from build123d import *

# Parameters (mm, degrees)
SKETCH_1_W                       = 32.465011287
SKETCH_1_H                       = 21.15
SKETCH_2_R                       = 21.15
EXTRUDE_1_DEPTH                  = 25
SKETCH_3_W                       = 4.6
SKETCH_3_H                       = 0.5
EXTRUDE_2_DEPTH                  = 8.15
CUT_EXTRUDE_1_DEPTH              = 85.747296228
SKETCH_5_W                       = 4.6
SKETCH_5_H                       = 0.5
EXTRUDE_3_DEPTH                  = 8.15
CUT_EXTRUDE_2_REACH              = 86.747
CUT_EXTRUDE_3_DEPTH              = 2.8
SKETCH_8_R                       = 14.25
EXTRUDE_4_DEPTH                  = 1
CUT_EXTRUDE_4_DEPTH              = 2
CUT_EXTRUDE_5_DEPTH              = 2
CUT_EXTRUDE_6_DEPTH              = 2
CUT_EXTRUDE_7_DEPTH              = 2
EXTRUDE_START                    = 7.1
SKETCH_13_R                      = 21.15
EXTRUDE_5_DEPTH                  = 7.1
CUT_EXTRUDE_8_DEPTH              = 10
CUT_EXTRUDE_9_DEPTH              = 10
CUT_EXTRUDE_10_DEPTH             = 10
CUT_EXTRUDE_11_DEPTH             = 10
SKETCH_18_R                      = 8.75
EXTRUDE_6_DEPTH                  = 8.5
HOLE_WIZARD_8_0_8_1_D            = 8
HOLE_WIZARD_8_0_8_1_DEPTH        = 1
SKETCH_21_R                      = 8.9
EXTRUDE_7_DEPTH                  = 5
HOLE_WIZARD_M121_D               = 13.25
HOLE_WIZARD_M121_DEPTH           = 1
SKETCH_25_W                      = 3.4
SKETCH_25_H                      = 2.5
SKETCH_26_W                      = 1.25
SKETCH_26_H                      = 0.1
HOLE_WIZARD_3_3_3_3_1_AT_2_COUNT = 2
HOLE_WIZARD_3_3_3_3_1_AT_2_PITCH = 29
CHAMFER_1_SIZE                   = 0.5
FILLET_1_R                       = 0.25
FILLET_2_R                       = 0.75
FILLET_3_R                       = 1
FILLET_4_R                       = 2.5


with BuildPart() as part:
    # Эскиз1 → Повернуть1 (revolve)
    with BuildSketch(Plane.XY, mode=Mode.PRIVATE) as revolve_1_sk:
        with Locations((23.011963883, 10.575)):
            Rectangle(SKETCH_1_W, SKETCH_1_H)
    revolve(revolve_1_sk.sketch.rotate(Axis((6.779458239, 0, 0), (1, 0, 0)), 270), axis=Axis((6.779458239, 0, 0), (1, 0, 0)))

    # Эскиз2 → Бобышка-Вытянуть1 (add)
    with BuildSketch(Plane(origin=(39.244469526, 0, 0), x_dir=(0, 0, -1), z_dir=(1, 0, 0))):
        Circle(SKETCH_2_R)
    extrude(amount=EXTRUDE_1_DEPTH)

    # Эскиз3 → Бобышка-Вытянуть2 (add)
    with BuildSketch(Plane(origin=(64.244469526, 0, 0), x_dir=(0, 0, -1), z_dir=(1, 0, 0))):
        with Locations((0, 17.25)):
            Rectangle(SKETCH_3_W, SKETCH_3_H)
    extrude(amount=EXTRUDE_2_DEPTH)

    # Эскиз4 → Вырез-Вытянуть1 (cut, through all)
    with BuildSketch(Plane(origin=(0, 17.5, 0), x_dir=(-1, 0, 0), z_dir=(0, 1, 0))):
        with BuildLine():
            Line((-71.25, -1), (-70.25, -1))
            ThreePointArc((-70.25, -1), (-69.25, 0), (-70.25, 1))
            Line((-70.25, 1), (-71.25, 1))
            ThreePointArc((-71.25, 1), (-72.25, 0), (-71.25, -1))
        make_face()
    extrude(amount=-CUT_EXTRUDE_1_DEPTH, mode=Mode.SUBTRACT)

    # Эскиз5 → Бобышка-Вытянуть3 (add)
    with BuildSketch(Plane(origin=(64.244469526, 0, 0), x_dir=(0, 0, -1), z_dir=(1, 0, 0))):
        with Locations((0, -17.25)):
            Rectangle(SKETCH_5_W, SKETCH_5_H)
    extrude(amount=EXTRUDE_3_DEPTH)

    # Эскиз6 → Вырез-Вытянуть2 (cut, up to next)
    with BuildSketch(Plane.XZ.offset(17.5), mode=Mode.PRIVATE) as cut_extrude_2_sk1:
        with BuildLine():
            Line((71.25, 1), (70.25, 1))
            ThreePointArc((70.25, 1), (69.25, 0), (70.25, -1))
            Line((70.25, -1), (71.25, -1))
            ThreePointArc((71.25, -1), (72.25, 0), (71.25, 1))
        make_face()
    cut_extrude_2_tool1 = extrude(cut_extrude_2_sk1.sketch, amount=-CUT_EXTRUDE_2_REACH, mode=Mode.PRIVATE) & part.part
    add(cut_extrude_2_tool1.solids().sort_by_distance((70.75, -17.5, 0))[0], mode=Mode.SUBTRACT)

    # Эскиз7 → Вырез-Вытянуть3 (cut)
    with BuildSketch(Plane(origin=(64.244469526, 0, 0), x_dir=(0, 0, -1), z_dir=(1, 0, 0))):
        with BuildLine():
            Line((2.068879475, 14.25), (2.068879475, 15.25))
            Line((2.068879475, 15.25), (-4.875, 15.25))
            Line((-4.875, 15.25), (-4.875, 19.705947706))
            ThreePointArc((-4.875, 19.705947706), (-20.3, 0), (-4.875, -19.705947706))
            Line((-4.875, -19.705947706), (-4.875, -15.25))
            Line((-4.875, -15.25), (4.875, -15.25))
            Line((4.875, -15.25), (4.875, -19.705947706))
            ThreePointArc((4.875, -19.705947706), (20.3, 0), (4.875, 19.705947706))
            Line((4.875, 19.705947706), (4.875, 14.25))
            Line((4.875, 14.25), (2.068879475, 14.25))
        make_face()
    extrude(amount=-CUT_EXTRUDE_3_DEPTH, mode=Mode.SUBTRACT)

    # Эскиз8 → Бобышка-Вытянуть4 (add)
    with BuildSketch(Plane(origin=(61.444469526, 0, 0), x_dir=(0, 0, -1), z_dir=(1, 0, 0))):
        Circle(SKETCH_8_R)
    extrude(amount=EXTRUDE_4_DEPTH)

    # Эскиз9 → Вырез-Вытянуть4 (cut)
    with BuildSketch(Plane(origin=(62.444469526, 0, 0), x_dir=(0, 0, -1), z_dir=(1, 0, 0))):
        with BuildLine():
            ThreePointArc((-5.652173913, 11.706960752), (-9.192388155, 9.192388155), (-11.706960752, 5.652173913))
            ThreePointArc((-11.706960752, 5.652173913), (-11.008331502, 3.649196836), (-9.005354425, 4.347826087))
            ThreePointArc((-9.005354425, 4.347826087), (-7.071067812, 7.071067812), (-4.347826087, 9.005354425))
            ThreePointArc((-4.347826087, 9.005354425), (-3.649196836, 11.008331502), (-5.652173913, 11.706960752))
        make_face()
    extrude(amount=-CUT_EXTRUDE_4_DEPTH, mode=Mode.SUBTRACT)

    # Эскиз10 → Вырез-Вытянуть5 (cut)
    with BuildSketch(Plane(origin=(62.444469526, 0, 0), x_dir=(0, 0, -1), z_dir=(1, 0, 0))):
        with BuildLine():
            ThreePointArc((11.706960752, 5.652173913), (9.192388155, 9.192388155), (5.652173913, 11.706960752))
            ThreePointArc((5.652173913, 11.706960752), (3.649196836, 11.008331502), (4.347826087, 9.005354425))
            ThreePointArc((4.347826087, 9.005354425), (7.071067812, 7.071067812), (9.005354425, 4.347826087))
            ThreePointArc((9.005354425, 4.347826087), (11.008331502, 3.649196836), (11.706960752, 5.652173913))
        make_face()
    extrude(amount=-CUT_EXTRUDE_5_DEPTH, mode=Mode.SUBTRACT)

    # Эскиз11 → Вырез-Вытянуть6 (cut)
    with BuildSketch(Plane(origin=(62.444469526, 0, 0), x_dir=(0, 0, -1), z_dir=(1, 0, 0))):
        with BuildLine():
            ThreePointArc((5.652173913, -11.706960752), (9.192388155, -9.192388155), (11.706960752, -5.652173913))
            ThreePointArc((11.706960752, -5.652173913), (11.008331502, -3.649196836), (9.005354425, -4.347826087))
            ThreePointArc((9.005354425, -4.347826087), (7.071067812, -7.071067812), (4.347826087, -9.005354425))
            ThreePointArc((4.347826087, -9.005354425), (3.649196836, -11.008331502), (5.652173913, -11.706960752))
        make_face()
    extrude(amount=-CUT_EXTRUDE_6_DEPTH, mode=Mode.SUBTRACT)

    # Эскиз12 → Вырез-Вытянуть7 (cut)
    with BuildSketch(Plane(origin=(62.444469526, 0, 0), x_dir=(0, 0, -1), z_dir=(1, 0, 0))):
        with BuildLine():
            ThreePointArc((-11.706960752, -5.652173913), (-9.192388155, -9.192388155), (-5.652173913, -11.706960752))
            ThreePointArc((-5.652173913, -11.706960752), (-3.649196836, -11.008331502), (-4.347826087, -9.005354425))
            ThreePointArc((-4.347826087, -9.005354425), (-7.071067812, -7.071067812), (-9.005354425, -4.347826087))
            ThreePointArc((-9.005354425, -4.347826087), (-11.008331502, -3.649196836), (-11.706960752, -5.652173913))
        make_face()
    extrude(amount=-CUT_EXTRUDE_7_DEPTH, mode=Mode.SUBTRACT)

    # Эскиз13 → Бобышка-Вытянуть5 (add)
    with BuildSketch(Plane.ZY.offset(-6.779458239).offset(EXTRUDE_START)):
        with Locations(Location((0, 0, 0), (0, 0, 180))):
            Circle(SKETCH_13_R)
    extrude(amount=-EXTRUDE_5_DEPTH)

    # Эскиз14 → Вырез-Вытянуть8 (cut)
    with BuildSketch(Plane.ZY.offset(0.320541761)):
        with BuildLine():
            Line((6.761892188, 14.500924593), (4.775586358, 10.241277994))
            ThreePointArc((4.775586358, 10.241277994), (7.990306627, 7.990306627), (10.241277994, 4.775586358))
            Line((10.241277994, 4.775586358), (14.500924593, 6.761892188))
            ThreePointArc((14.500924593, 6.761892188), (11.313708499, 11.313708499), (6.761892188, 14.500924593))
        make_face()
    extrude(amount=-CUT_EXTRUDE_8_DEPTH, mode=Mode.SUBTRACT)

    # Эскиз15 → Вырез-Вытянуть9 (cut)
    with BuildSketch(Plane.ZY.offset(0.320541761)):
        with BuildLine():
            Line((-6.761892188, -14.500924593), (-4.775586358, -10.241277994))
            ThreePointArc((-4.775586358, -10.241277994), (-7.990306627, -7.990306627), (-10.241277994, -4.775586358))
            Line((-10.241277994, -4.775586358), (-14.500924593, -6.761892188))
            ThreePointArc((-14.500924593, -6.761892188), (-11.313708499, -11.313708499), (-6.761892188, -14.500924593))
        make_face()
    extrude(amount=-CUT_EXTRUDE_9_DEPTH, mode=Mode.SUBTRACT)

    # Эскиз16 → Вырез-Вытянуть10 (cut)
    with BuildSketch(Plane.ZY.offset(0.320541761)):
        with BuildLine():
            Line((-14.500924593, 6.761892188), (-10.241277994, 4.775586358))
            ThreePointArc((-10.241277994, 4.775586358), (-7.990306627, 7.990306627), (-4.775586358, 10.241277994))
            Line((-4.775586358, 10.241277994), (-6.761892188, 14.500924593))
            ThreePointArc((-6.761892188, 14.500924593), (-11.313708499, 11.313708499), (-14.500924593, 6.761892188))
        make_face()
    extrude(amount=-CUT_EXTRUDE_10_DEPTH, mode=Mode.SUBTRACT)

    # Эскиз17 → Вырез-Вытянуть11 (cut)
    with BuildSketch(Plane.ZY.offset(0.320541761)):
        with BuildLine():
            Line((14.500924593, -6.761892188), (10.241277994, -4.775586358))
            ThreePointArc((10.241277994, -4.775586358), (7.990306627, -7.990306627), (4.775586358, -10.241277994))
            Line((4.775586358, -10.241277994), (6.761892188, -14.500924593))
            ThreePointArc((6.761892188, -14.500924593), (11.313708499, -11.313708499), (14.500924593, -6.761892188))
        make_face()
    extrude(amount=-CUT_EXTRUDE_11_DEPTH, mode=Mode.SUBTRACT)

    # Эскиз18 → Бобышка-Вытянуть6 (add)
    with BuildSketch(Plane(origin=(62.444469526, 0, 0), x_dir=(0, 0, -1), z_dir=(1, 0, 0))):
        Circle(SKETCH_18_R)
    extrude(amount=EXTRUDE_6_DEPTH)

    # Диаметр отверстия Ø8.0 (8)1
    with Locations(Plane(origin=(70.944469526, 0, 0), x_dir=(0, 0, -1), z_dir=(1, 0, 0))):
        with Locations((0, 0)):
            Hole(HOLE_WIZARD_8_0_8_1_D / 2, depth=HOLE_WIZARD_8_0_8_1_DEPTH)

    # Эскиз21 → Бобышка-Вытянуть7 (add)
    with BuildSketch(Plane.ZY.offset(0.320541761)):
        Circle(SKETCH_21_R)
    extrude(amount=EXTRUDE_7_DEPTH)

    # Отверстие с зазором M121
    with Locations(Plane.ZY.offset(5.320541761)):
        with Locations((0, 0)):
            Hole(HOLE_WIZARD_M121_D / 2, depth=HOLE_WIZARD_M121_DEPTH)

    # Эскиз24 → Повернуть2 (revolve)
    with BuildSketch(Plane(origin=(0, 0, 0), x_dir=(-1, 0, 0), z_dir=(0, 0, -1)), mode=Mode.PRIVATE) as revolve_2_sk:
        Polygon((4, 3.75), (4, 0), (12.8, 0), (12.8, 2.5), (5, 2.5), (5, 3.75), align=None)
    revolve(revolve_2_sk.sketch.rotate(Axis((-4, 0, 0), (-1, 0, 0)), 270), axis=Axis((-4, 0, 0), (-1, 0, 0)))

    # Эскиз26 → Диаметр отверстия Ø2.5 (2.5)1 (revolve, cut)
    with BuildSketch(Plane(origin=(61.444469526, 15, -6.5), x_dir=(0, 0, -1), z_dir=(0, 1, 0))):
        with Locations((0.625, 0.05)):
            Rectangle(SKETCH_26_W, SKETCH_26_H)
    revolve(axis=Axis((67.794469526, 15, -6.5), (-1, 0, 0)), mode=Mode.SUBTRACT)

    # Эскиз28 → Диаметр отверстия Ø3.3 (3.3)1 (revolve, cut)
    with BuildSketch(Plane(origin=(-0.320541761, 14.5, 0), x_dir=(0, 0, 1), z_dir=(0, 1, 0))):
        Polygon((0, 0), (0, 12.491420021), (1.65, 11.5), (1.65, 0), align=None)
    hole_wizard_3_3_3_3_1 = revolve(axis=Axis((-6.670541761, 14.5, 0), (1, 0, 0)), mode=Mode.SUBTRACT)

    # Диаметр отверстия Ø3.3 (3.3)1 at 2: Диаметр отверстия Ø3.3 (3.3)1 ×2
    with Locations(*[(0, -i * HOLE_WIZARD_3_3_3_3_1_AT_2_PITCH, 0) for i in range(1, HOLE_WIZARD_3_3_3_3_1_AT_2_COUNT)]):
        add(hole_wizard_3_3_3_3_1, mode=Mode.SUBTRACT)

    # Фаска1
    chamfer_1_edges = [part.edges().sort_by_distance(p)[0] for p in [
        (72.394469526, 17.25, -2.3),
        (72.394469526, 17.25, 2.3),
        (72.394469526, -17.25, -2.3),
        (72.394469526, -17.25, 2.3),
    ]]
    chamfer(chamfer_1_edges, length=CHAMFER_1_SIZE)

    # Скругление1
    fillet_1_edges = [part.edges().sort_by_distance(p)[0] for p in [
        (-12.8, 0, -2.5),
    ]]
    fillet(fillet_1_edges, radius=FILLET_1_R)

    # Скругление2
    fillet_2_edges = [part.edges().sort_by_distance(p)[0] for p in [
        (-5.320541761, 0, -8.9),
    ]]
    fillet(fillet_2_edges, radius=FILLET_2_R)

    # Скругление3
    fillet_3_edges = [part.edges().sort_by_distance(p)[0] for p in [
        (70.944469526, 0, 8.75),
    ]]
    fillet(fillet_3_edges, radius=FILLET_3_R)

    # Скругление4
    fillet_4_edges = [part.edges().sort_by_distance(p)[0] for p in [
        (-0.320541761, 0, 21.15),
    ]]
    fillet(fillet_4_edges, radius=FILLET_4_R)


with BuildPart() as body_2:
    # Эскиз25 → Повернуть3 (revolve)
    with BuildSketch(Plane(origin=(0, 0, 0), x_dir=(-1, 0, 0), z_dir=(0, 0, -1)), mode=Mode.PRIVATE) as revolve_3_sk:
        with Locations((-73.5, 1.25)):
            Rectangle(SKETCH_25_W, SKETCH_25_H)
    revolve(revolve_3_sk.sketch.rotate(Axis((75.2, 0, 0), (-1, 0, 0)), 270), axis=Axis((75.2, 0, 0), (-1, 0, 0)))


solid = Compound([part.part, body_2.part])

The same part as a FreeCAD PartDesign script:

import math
import FreeCAD as App
import Part
import Sketcher
from FreeCAD import Vector
Q = App.Units.Quantity


def edges_at(feature, points):
    """Names of the edges that pass closest to the given points."""
    edges = feature.Shape.Edges
    near = lambda p: min(range(len(edges)), key=lambda i: edges[i].distToShape(Part.Vertex(*p))[0])
    return sorted({f"Edge{near(p) + 1}" for p in points})

doc = App.newDocument("Part")
body = doc.addObject("PartDesign::Body", "Body")

# Sketch on XY plane
sketch1 = body.newObject("Sketcher::SketchObject", "Sketch")
sketch1.AttachmentSupport = (doc.getObject("XY_Plane"), [""])
sketch1.MapMode = "FlatFace"
sketch1.addGeometry([
    Part.LineSegment(Vector(7, 21, 0), Vector(7, 0, 0)),
    Part.LineSegment(Vector(7, 0, 0), Vector(39, 0, 0)),
    Part.LineSegment(Vector(39, 0, 0), Vector(39, 21, 0)),
    Part.LineSegment(Vector(39, 21, 0), Vector(7, 21, 0)),
], False)
sketch1.addConstraint([
    Sketcher.Constraint("Coincident", 0, 2, 1, 1),
    Sketcher.Constraint("Coincident", 1, 2, 2, 1),
    Sketcher.Constraint("Coincident", 2, 2, 3, 1),
    Sketcher.Constraint("Coincident", 3, 2, 0, 1),
    Sketcher.Constraint("Vertical", 0),
    Sketcher.Constraint("Horizontal", 1),
    Sketcher.Constraint("Vertical", 2),
    Sketcher.Constraint("Horizontal", 3),
    Sketcher.Constraint("PointOnObject", 0, 2, -1),
    Sketcher.Constraint("DistanceY", 0, 2, 0, 1, 21.15),
    Sketcher.Constraint("DistanceX", 1, 1, 1, 2, 32.465011),
    Sketcher.Constraint("DistanceX", -1, 1, 0, 2, 6.779458),
])
revolution = body.newObject("PartDesign::Revolution", "Revolution")
revolution.Profile = sketch1
revolution.ReferenceAxis = (sketch1, ["H_Axis"])
revolution.Angle = 360

# Sketch on YZ plane
sketch2 = body.newObject("Sketcher::SketchObject", "Sketch001")
sketch2.AttachmentSupport = (doc.getObject("YZ_Plane"), [""])
sketch2.MapMode = "FlatFace"
sketch2.AttachmentOffset = App.Placement(Vector(0, 0, 39.24447), App.Rotation())
sketch2.addGeometry(Part.Circle(Vector(0, 0, 0), Vector(0, 0, 1), 21), False)
sketch2.addConstraint([
    Sketcher.Constraint("Coincident", 0, 3, -1, 1),
    Sketcher.Constraint("Diameter", 0, 42.3),
])
pad1 = body.newObject("PartDesign::Pad", "Pad")
pad1.Profile = sketch2
pad1.Length = 25

# Sketch on YZ plane
sketch3 = body.newObject("Sketcher::SketchObject", "Sketch002")
sketch3.AttachmentSupport = (doc.getObject("YZ_Plane"), [""])
sketch3.MapMode = "FlatFace"
sketch3.AttachmentOffset = App.Placement(Vector(0, 0, 64.24447), App.Rotation())
sketch3.addGeometry([
    Part.LineSegment(Vector(17.5, 2.3, 0), Vector(17, 2.3, 0)),
    Part.LineSegment(Vector(17, 2.3, 0), Vector(17, -2.3, 0)),
    Part.LineSegment(Vector(17, -2.3, 0), Vector(17.5, -2.3, 0)),
    Part.LineSegment(Vector(17.5, -2.3, 0), Vector(17.5, 2.3, 0)),
], False)
sketch3.addConstraint([
    Sketcher.Constraint("Coincident", 0, 2, 1, 1),
    Sketcher.Constraint("Coincident", 1, 2, 2, 1),
    Sketcher.Constraint("Coincident", 2, 2, 3, 1),
    Sketcher.Constraint("Coincident", 3, 2, 0, 1),
    Sketcher.Constraint("Horizontal", 0),
    Sketcher.Constraint("Vertical", 1),
    Sketcher.Constraint("Horizontal", 2),
    Sketcher.Constraint("Vertical", 3),
    Sketcher.Constraint("DistanceX", 0, 2, 0, 1, 0.5),
    Sketcher.Constraint("DistanceY", 1, 2, 1, 1, 4.6),
    Sketcher.Constraint("DistanceX", -1, 1, 0, 2, 17.0),
    Sketcher.Constraint("DistanceY", -1, 1, 0, 2, 2.3),
])
pad2 = body.newObject("PartDesign::Pad", "Pad001")
pad2.Profile = sketch3
pad2.Length = 8.15

# Sketch on XZ plane
sketch4 = body.newObject("Sketcher::SketchObject", "Sketch003")
sketch4.AttachmentSupport = (doc.getObject("XZ_Plane"), [""])
sketch4.MapMode = "FlatFace"
sketch4.AttachmentOffset = App.Placement(Vector(0, 0, -17.5), App.Rotation())
sketch4.addGeometry([
    Part.LineSegment(Vector(71.2, -1, 0), Vector(70.2, -1, 0)),
    Part.ArcOfCircle(Part.Circle(Vector(70.2, 0, 0), Vector(0, 0, 1), 1), math.radians(90), math.radians(270)),
    Part.LineSegment(Vector(70.2, 1, 0), Vector(71.2, 1, 0)),
    Part.ArcOfCircle(Part.Circle(Vector(71.2, 0, 0), Vector(0, 0, 1), 1), math.radians(-90), math.radians(90)),
], False)
sketch4.addConstraint([
    Sketcher.Constraint("Tangent", 0, 2, 1, 2),
    Sketcher.Constraint("Tangent", 1, 1, 2, 1),
    Sketcher.Constraint("Tangent", 2, 2, 3, 2),
    Sketcher.Constraint("Tangent", 3, 1, 0, 1),
    Sketcher.Constraint("Horizontal", 0),
    Sketcher.Constraint("Horizontal", 2),
    Sketcher.Constraint("PointOnObject", 1, 3, -1),
    Sketcher.Constraint("Radius", 1, 1.0),
    Sketcher.Constraint("DistanceX", 0, 2, 0, 1, 1.0),
    Sketcher.Constraint("DistanceX", -1, 1, 1, 3, 70.25),
])
pocket1 = body.newObject("PartDesign::Pocket", "Pocket")
pocket1.Profile = sketch4
pocket1.Type = "ThroughAll"
pocket1.Reversed = True

# Sketch on YZ plane
sketch5 = body.newObject("Sketcher::SketchObject", "Sketch004")
sketch5.AttachmentSupport = (doc.getObject("YZ_Plane"), [""])
sketch5.MapMode = "FlatFace"
sketch5.AttachmentOffset = App.Placement(Vector(0, 0, 64.24447), App.Rotation())
sketch5.addGeometry([
    Part.LineSegment(Vector(-17, 2.3, 0), Vector(-17.5, 2.3, 0)),
    Part.LineSegment(Vector(-17.5, 2.3, 0), Vector(-17.5, -2.3, 0)),
    Part.LineSegment(Vector(-17.5, -2.3, 0), Vector(-17, -2.3, 0)),
    Part.LineSegment(Vector(-17, -2.3, 0), Vector(-17, 2.3, 0)),
], False)
sketch5.addConstraint([
    Sketcher.Constraint("Coincident", 0, 2, 1, 1),
    Sketcher.Constraint("Coincident", 1, 2, 2, 1),
    Sketcher.Constraint("Coincident", 2, 2, 3, 1),
    Sketcher.Constraint("Coincident", 3, 2, 0, 1),
    Sketcher.Constraint("Horizontal", 0),
    Sketcher.Constraint("Vertical", 1),
    Sketcher.Constraint("Horizontal", 2),
    Sketcher.Constraint("Vertical", 3),
    Sketcher.Constraint("DistanceX", 0, 2, 0, 1, 0.5),
    Sketcher.Constraint("DistanceY", 1, 2, 1, 1, 4.6),
    Sketcher.Constraint("DistanceX", 2, 2, -1, 1, 17.0),
    Sketcher.Constraint("DistanceY", -1, 1, 0, 2, 2.3),
])
pad3 = body.newObject("PartDesign::Pad", "Pad002")
pad3.Profile = sketch5
pad3.Length = 8.15

# Sketch on XZ plane
sketch6 = body.newObject("Sketcher::SketchObject", "Sketch005")
sketch6.AttachmentSupport = (doc.getObject("XZ_Plane"), [""])
sketch6.MapMode = "FlatFace"
sketch6.AttachmentOffset = App.Placement(Vector(0, 0, 17.5), App.Rotation())
sketch6.addGeometry([
    Part.LineSegment(Vector(71.2, 1, 0), Vector(70.2, 1, 0)),
    Part.ArcOfCircle(Part.Circle(Vector(70.2, 0, 0), Vector(0, 0, 1), 1), math.radians(90), math.radians(270)),
    Part.LineSegment(Vector(70.2, -1, 0), Vector(71.2, -1, 0)),
    Part.ArcOfCircle(Part.Circle(Vector(71.2, 0, 0), Vector(0, 0, 1), 1), math.radians(-90), math.radians(90)),
], False)
sketch6.addConstraint([
    Sketcher.Constraint("Tangent", 0, 2, 1, 1),
    Sketcher.Constraint("Tangent", 1, 2, 2, 1),
    Sketcher.Constraint("Tangent", 2, 2, 3, 1),
    Sketcher.Constraint("Tangent", 3, 2, 0, 1),
    Sketcher.Constraint("Horizontal", 0),
    Sketcher.Constraint("Horizontal", 2),
    Sketcher.Constraint("PointOnObject", 1, 3, -1),
    Sketcher.Constraint("Radius", 1, 1.0),
    Sketcher.Constraint("DistanceX", 0, 2, 0, 1, 1.0),
    Sketcher.Constraint("DistanceX", -1, 1, 1, 3, 70.25),
])
pocket2 = body.newObject("PartDesign::Pocket", "Pocket001")
pocket2.Profile = sketch6
pocket2.Type = "UpToFirst"

# Sketch on YZ plane
sketch7 = body.newObject("Sketcher::SketchObject", "Sketch006")
sketch7.AttachmentSupport = (doc.getObject("YZ_Plane"), [""])
sketch7.MapMode = "FlatFace"
sketch7.AttachmentOffset = App.Placement(Vector(0, 0, 64.24447), App.Rotation())
sketch7.addGeometry([
    Part.LineSegment(Vector(14.2, -2.1, 0), Vector(15.2, -2.1, 0)),  # 0
    Part.LineSegment(Vector(15.2, -2.1, 0), Vector(15.2, 4.9, 0)),  # 1
    Part.LineSegment(Vector(15.2, 4.9, 0), Vector(19.7, 4.9, 0)),  # 2
    Part.ArcOfCircle(Part.Circle(Vector(0, 0, 0), Vector(0, 0, 1), 20.3), math.radians(14), math.radians(166)),  # 3
    Part.LineSegment(Vector(-19.7, 4.9, 0), Vector(-15.2, 4.9, 0)),  # 4
    Part.LineSegment(Vector(-15.2, 4.9, 0), Vector(-15.2, -4.9, 0)),  # 5
    Part.LineSegment(Vector(-15.2, -4.9, 0), Vector(-19.7, -4.9, 0)),  # 6
    Part.ArcOfCircle(Part.Circle(Vector(0, 0, 0), Vector(0, 0, 1), 20.3), math.radians(-166), math.radians(-14)),  # 7
    Part.LineSegment(Vector(19.7, -4.9, 0), Vector(14.2, -4.9, 0)),  # 8
    Part.LineSegment(Vector(14.2, -4.9, 0), Vector(14.2, -2.1, 0)),  # 9
], False)
sketch7.addConstraint([
    Sketcher.Constraint("Coincident", 0, 2, 1, 1),
    Sketcher.Constraint("Coincident", 1, 2, 2, 1),
    Sketcher.Constraint("Coincident", 2, 2, 3, 1),
    Sketcher.Constraint("Coincident", 3, 2, 4, 1),
    Sketcher.Constraint("Coincident", 4, 2, 5, 1),
    Sketcher.Constraint("Coincident", 5, 2, 6, 1),
    Sketcher.Constraint("Coincident", 6, 2, 7, 1),
    Sketcher.Constraint("Coincident", 7, 2, 8, 1),
    Sketcher.Constraint("Coincident", 8, 2, 9, 1),
    Sketcher.Constraint("Coincident", 9, 2, 0, 1),
    Sketcher.Constraint("Horizontal", 0),
    Sketcher.Constraint("Vertical", 1),
    Sketcher.Constraint("Horizontal", 2),
    Sketcher.Constraint("Horizontal", 4),
    Sketcher.Constraint("Vertical", 5),
    Sketcher.Constraint("Horizontal", 6),
    Sketcher.Constraint("Horizontal", 8),
    Sketcher.Constraint("Vertical", 9),
    Sketcher.Constraint("Coincident", 3, 3, -1, 1),
    Sketcher.Constraint("Coincident", 7, 3, -1, 1),
    Sketcher.Constraint("Equal", 3, 7),
    Sketcher.Constraint("Symmetric", 1, 2, 5, 2, -1, 1),
    Sketcher.Constraint("Horizontal", 2, 2, 3, 2),
    Sketcher.Constraint("Horizontal", 6, 2, 7, 2),
    Sketcher.Constraint("Radius", 3, 20.3),
    Sketcher.Constraint("DistanceX", 0, 1, 0, 2, 1.0),
    Sketcher.Constraint("DistanceY", 5, 2, 5, 1, 9.75),
    Sketcher.Constraint("DistanceX", 4, 2, 1, 2, 30.5),
    Sketcher.Constraint("DistanceY", 1, 1, 1, 2, 6.943879),
])
pocket3 = body.newObject("PartDesign::Pocket", "Pocket002")
pocket3.Profile = sketch7
pocket3.Length = 2.8

# Sketch on YZ plane
sketch8 = body.newObject("Sketcher::SketchObject", "Sketch007")
sketch8.AttachmentSupport = (doc.getObject("YZ_Plane"), [""])
sketch8.MapMode = "FlatFace"
sketch8.AttachmentOffset = App.Placement(Vector(0, 0, 61.44447), App.Rotation())
sketch8.addGeometry(Part.Circle(Vector(0, 0, 0), Vector(0, 0, 1), 14), False)
sketch8.addConstraint([
    Sketcher.Constraint("Coincident", 0, 3, -1, 1),
    Sketcher.Constraint("Diameter", 0, 28.5),
])
pad4 = body.newObject("PartDesign::Pad", "Pad003")
pad4.Profile = sketch8
pad4.Length = 1

# Sketch on YZ plane
sketch9 = body.newObject("Sketcher::SketchObject", "Sketch008")
sketch9.AttachmentSupport = (doc.getObject("YZ_Plane"), [""])
sketch9.MapMode = "FlatFace"
sketch9.AttachmentOffset = App.Placement(Vector(0, 0, 62.44447), App.Rotation())
sketch9.addGeometry([
    Part.ArcOfCircle(Part.Circle(Vector(0, 0, 0), Vector(0, 0, 1), 13), math.radians(26), math.radians(64)),
    Part.ArcOfCircle(Part.Circle(Vector(5, 10.4, 0), Vector(0, 0, 1), 1.5), math.radians(64), math.radians(244)),
    Part.ArcOfCircle(Part.Circle(Vector(0, 0, 0), Vector(0, 0, 1), 10), math.radians(26), math.radians(64)),
    Part.ArcOfCircle(Part.Circle(Vector(10.4, 5, 0), Vector(0, 0, 1), 1.5), math.radians(-154), math.radians(26)),
], False)
sketch9.addConstraint([
    Sketcher.Constraint("Tangent", 0, 2, 1, 1),
    Sketcher.Constraint("Tangent", 1, 2, 2, 2),
    Sketcher.Constraint("Tangent", 2, 1, 3, 1),
    Sketcher.Constraint("Tangent", 3, 2, 0, 1),
    Sketcher.Constraint("Coincident", 0, 3, -1, 1),
    Sketcher.Constraint("Coincident", 2, 3, -1, 1),
    Sketcher.Constraint("Radius", 0, 13.0),
    Sketcher.Constraint("Radius", 2, 10.0),
    Sketcher.Constraint("DistanceX", -1, 1, 1, 3, 5.0),
    Sketcher.Constraint("DistanceY", -1, 1, 3, 3, 5.0),
])
pocket4 = body.newObject("PartDesign::Pocket", "Pocket003")
pocket4.Profile = sketch9
pocket4.Length = 2

# Sketch on YZ plane
sketch10 = body.newObject("Sketcher::SketchObject", "Sketch009")
sketch10.AttachmentSupport = (doc.getObject("YZ_Plane"), [""])
sketch10.MapMode = "FlatFace"
sketch10.AttachmentOffset = App.Placement(Vector(0, 0, 62.44447), App.Rotation())
sketch10.addGeometry([
    Part.ArcOfCircle(Part.Circle(Vector(0, 0, 0), Vector(0, 0, 1), 13), math.radians(-64), math.radians(-26)),
    Part.ArcOfCircle(Part.Circle(Vector(10.4, -5, 0), Vector(0, 0, 1), 1.5), math.radians(-26), math.radians(154)),
    Part.ArcOfCircle(Part.Circle(Vector(0, 0, 0), Vector(0, 0, 1), 10), math.radians(-64), math.radians(-26)),
    Part.ArcOfCircle(Part.Circle(Vector(5, -10.4, 0), Vector(0, 0, 1), 1.5), math.radians(116), math.radians(296)),
], False)
sketch10.addConstraint([
    Sketcher.Constraint("Tangent", 0, 2, 1, 1),
    Sketcher.Constraint("Tangent", 1, 2, 2, 2),
    Sketcher.Constraint("Tangent", 2, 1, 3, 1),
    Sketcher.Constraint("Tangent", 3, 2, 0, 1),
    Sketcher.Constraint("Coincident", 0, 3, -1, 1),
    Sketcher.Constraint("Coincident", 2, 3, -1, 1),
    Sketcher.Constraint("Radius", 0, 13.0),
    Sketcher.Constraint("Radius", 2, 10.0),
    Sketcher.Constraint("DistanceY", 1, 3, -1, 1, 5.0),
    Sketcher.Constraint("DistanceX", -1, 1, 3, 3, 5.0),
])
pocket5 = body.newObject("PartDesign::Pocket", "Pocket004")
pocket5.Profile = sketch10
pocket5.Length = 2

# Sketch on YZ plane
sketch11 = body.newObject("Sketcher::SketchObject", "Sketch010")
sketch11.AttachmentSupport = (doc.getObject("YZ_Plane"), [""])
sketch11.MapMode = "FlatFace"
sketch11.AttachmentOffset = App.Placement(Vector(0, 0, 62.44447), App.Rotation())
sketch11.addGeometry([
    Part.ArcOfCircle(Part.Circle(Vector(0, 0, 0), Vector(0, 0, 1), 13), math.radians(-154), math.radians(-116)),
    Part.ArcOfCircle(Part.Circle(Vector(-5, -10.4, 0), Vector(0, 0, 1), 1.5), math.radians(-116), math.radians(64)),
    Part.ArcOfCircle(Part.Circle(Vector(0, 0, 0), Vector(0, 0, 1), 10), math.radians(-154), math.radians(-116)),
    Part.ArcOfCircle(Part.Circle(Vector(-10.4, -5, 0), Vector(0, 0, 1), 1.5), math.radians(26), math.radians(206)),
], False)
sketch11.addConstraint([
    Sketcher.Constraint("Tangent", 0, 2, 1, 1),
    Sketcher.Constraint("Tangent", 1, 2, 2, 2),
    Sketcher.Constraint("Tangent", 2, 1, 3, 1),
    Sketcher.Constraint("Tangent", 3, 2, 0, 1),
    Sketcher.Constraint("Coincident", 0, 3, -1, 1),
    Sketcher.Constraint("Coincident", 2, 3, -1, 1),
    Sketcher.Constraint("Radius", 0, 13.0),
    Sketcher.Constraint("Radius", 2, 10.0),
    Sketcher.Constraint("DistanceX", 1, 3, -1, 1, 5.0),
    Sketcher.Constraint("DistanceY", 3, 3, -1, 1, 5.0),
])
pocket6 = body.newObject("PartDesign::Pocket", "Pocket005")
pocket6.Profile = sketch11
pocket6.Length = 2

# Sketch on YZ plane
sketch12 = body.newObject("Sketcher::SketchObject", "Sketch011")
sketch12.AttachmentSupport = (doc.getObject("YZ_Plane"), [""])
sketch12.MapMode = "FlatFace"
sketch12.AttachmentOffset = App.Placement(Vector(0, 0, 62.44447), App.Rotation())
sketch12.addGeometry([
    Part.ArcOfCircle(Part.Circle(Vector(0, 0, 0), Vector(0, 0, 1), 13), math.radians(116), math.radians(154)),
    Part.ArcOfCircle(Part.Circle(Vector(-10.4, 5, 0), Vector(0, 0, 1), 1.5), math.radians(154), math.radians(334)),
    Part.ArcOfCircle(Part.Circle(Vector(0, 0, 0), Vector(0, 0, 1), 10), math.radians(116), math.radians(154)),
    Part.ArcOfCircle(Part.Circle(Vector(-5, 10.4, 0), Vector(0, 0, 1), 1.5), math.radians(-64), math.radians(116)),
], False)
sketch12.addConstraint([
    Sketcher.Constraint("Tangent", 0, 2, 1, 1),
    Sketcher.Constraint("Tangent", 1, 2, 2, 2),
    Sketcher.Constraint("Tangent", 2, 1, 3, 1),
    Sketcher.Constraint("Tangent", 3, 2, 0, 1),
    Sketcher.Constraint("Coincident", 0, 3, -1, 1),
    Sketcher.Constraint("Coincident", 2, 3, -1, 1),
    Sketcher.Constraint("Radius", 0, 13.0),
    Sketcher.Constraint("Radius", 2, 10.0),
    Sketcher.Constraint("DistanceY", -1, 1, 1, 3, 5.0),
    Sketcher.Constraint("DistanceX", 3, 3, -1, 1, 5.0),
])
pocket7 = body.newObject("PartDesign::Pocket", "Pocket006")
pocket7.Profile = sketch12
pocket7.Length = 2

# Sketch on YZ plane
sketch13 = body.newObject("Sketcher::SketchObject", "Sketch012")
sketch13.AttachmentSupport = (doc.getObject("YZ_Plane"), [""])
sketch13.MapMode = "FlatFace"
sketch13.AttachmentOffset = App.Placement(Vector(0, 0, -0.320542), App.Rotation())
sketch13.addGeometry(Part.Circle(Vector(0, 0, 0), Vector(0, 0, 1), 21), False)
sketch13.addConstraint([
    Sketcher.Constraint("Coincident", 0, 3, -1, 1),
    Sketcher.Constraint("Diameter", 0, 42.3),
])
pad5 = body.newObject("PartDesign::Pad", "Pad004")
pad5.Profile = sketch13
pad5.Length = 7.1

# Sketch on YZ plane
sketch14 = body.newObject("Sketcher::SketchObject", "Sketch013")
sketch14.AttachmentSupport = (doc.getObject("YZ_Plane"), [""])
sketch14.MapMode = "FlatFace"
sketch14.AttachmentOffset = App.Placement(Vector(0, 0, -0.320542), App.Rotation())
sketch14.addGeometry([
    Part.LineSegment(Vector(14.5, 6.8, 0), Vector(10.2, 4.8, 0)),
    Part.ArcOfCircle(Part.Circle(Vector(0, 0, 0), Vector(0, 0, 1), 11.3), math.radians(25), math.radians(65)),
    Part.LineSegment(Vector(4.8, 10.2, 0), Vector(6.8, 14.5, 0)),
    Part.ArcOfCircle(Part.Circle(Vector(0, 0, 0), Vector(0, 0, 1), 16), math.radians(25), math.radians(65)),
], False)
sketch14.addConstraint([
    Sketcher.Constraint("Coincident", 0, 2, 1, 1),
    Sketcher.Constraint("Coincident", 1, 2, 2, 1),
    Sketcher.Constraint("Coincident", 2, 2, 3, 2),
    Sketcher.Constraint("Coincident", 3, 1, 0, 1),
    Sketcher.Constraint("Coincident", 1, 3, -1, 1),
    Sketcher.Constraint("Coincident", 3, 3, -1, 1),
    Sketcher.Constraint("Radius", 3, 16.0),
    Sketcher.Constraint("Radius", 1, 11.3),
    Sketcher.Constraint("Angle", 0, Q("-155 deg")),
    Sketcher.Constraint("Angle", 2, Q("65 deg")),
    Sketcher.Constraint("DistanceX", 1, 3, 0, 2, 10.241278),
    Sketcher.Constraint("DistanceX", 1, 2, 0, 2, 5.465692),
])
pocket8 = body.newObject("PartDesign::Pocket", "Pocket007")
pocket8.Profile = sketch14
pocket8.Length = 10
pocket8.Reversed = True

# Sketch on YZ plane
sketch15 = body.newObject("Sketcher::SketchObject", "Sketch014")
sketch15.AttachmentSupport = (doc.getObject("YZ_Plane"), [""])
sketch15.MapMode = "FlatFace"
sketch15.AttachmentOffset = App.Placement(Vector(0, 0, -0.320542), App.Rotation())
sketch15.addGeometry([
    Part.LineSegment(Vector(-14.5, -6.8, 0), Vector(-10.2, -4.8, 0)),
    Part.ArcOfCircle(Part.Circle(Vector(0, 0, 0), Vector(0, 0, 1), 11.3), math.radians(-155), math.radians(-115)),
    Part.LineSegment(Vector(-4.8, -10.2, 0), Vector(-6.8, -14.5, 0)),
    Part.ArcOfCircle(Part.Circle(Vector(0, 0, 0), Vector(0, 0, 1), 16), math.radians(-155), math.radians(-115)),
], False)
sketch15.addConstraint([
    Sketcher.Constraint("Coincident", 0, 2, 1, 1),
    Sketcher.Constraint("Coincident", 1, 2, 2, 1),
    Sketcher.Constraint("Coincident", 2, 2, 3, 2),
    Sketcher.Constraint("Coincident", 3, 1, 0, 1),
    Sketcher.Constraint("Coincident", 1, 3, -1, 1),
    Sketcher.Constraint("Coincident", 3, 3, -1, 1),
    Sketcher.Constraint("Radius", 3, 16.0),
    Sketcher.Constraint("Radius", 1, 11.3),
    Sketcher.Constraint("Angle", 0, Q("25 deg")),
    Sketcher.Constraint("Angle", 2, Q("-115 deg")),
    Sketcher.Constraint("DistanceX", 0, 2, 1, 3, 10.241278),
    Sketcher.Constraint("DistanceX", 0, 2, 1, 2, 5.465692),
])
pocket9 = body.newObject("PartDesign::Pocket", "Pocket008")
pocket9.Profile = sketch15
pocket9.Length = 10
pocket9.Reversed = True

# Sketch on YZ plane
sketch16 = body.newObject("Sketcher::SketchObject", "Sketch015")
sketch16.AttachmentSupport = (doc.getObject("YZ_Plane"), [""])
sketch16.MapMode = "FlatFace"
sketch16.AttachmentOffset = App.Placement(Vector(0, 0, -0.320542), App.Rotation())
sketch16.addGeometry([
    Part.LineSegment(Vector(6.8, -14.5, 0), Vector(4.8, -10.2, 0)),
    Part.ArcOfCircle(Part.Circle(Vector(0, 0, 0), Vector(0, 0, 1), 11.3), math.radians(-65), math.radians(-25)),
    Part.LineSegment(Vector(10.2, -4.8, 0), Vector(14.5, -6.8, 0)),
    Part.ArcOfCircle(Part.Circle(Vector(0, 0, 0), Vector(0, 0, 1), 16), math.radians(-65), math.radians(-25)),
], False)
sketch16.addConstraint([
    Sketcher.Constraint("Coincident", 0, 2, 1, 1),
    Sketcher.Constraint("Coincident", 1, 2, 2, 1),
    Sketcher.Constraint("Coincident", 2, 2, 3, 2),
    Sketcher.Constraint("Coincident", 3, 1, 0, 1),
    Sketcher.Constraint("Coincident", 1, 3, -1, 1),
    Sketcher.Constraint("Coincident", 3, 3, -1, 1),
    Sketcher.Constraint("Radius", 3, 16.0),
    Sketcher.Constraint("Radius", 1, 11.3),
    Sketcher.Constraint("Angle", 0, Q("115 deg")),
    Sketcher.Constraint("Angle", 2, Q("-25 deg")),
    Sketcher.Constraint("DistanceY", 0, 2, 1, 3, 10.241278),
    Sketcher.Constraint("DistanceX", 0, 2, 1, 2, 5.465692),
])
pocket10 = body.newObject("PartDesign::Pocket", "Pocket009")
pocket10.Profile = sketch16
pocket10.Length = 10
pocket10.Reversed = True

# Sketch on YZ plane
sketch17 = body.newObject("Sketcher::SketchObject", "Sketch016")
sketch17.AttachmentSupport = (doc.getObject("YZ_Plane"), [""])
sketch17.MapMode = "FlatFace"
sketch17.AttachmentOffset = App.Placement(Vector(0, 0, -0.320542), App.Rotation())
sketch17.addGeometry([
    Part.LineSegment(Vector(-6.8, 14.5, 0), Vector(-4.8, 10.2, 0)),
    Part.ArcOfCircle(Part.Circle(Vector(0, 0, 0), Vector(0, 0, 1), 11.3), math.radians(115), math.radians(155)),
    Part.LineSegment(Vector(-10.2, 4.8, 0), Vector(-14.5, 6.8, 0)),
    Part.ArcOfCircle(Part.Circle(Vector(0, 0, 0), Vector(0, 0, 1), 16), math.radians(115), math.radians(155)),
], False)
sketch17.addConstraint([
    Sketcher.Constraint("Coincident", 0, 2, 1, 1),
    Sketcher.Constraint("Coincident", 1, 2, 2, 1),
    Sketcher.Constraint("Coincident", 2, 2, 3, 2),
    Sketcher.Constraint("Coincident", 3, 1, 0, 1),
    Sketcher.Constraint("Coincident", 1, 3, -1, 1),
    Sketcher.Constraint("Coincident", 3, 3, -1, 1),
    Sketcher.Constraint("Radius", 3, 16.0),
    Sketcher.Constraint("Radius", 1, 11.3),
    Sketcher.Constraint("Angle", 0, Q("-65 deg")),
    Sketcher.Constraint("Angle", 2, Q("155 deg")),
    Sketcher.Constraint("DistanceY", 1, 3, 0, 2, 10.241278),
    Sketcher.Constraint("DistanceX", 1, 2, 0, 2, 5.465692),
])
pocket11 = body.newObject("PartDesign::Pocket", "Pocket010")
pocket11.Profile = sketch17
pocket11.Length = 10
pocket11.Reversed = True

# Sketch on YZ plane
sketch18 = body.newObject("Sketcher::SketchObject", "Sketch017")
sketch18.AttachmentSupport = (doc.getObject("YZ_Plane"), [""])
sketch18.MapMode = "FlatFace"
sketch18.AttachmentOffset = App.Placement(Vector(0, 0, 62.44447), App.Rotation())
sketch18.addGeometry(Part.Circle(Vector(0, 0, 0), Vector(0, 0, 1), 9), False)
sketch18.addConstraint([
    Sketcher.Constraint("Coincident", 0, 3, -1, 1),
    Sketcher.Constraint("Diameter", 0, 17.5),
])
pad6 = body.newObject("PartDesign::Pad", "Pad005")
pad6.Profile = sketch18
pad6.Length = 8.5

# Sketch on YZ plane
sketch19 = body.newObject("Sketcher::SketchObject", "Sketch018")
sketch19.AttachmentSupport = (doc.getObject("YZ_Plane"), [""])
sketch19.MapMode = "FlatFace"
sketch19.AttachmentOffset = App.Placement(Vector(0, 0, 70.94447), App.Rotation())
sketch19.addGeometry(Part.Circle(Vector(0, 0, 0), Vector(0, 0, 1), 4), False)
sketch19.addConstraint([
    Sketcher.Constraint("Coincident", 0, 3, -1, 1),
    Sketcher.Constraint("Diameter", 0, 8.0),
])
doc.recompute()
hole = body.newObject("PartDesign::Hole", "Hole")
hole.Profile = sketch19
hole.ThreadType = "None"
hole.Diameter = 8
hole.DepthType = "Dimension"
hole.Depth = 1
hole.DrillPoint = "Flat"

# Sketch on YZ plane
sketch20 = body.newObject("Sketcher::SketchObject", "Sketch019")
sketch20.AttachmentSupport = (doc.getObject("YZ_Plane"), [""])
sketch20.MapMode = "FlatFace"
sketch20.AttachmentOffset = App.Placement(Vector(0, 0, -0.320542), App.Rotation())
sketch20.addGeometry(Part.Circle(Vector(0, 0, 0), Vector(0, 0, 1), 9), False)
sketch20.addConstraint([
    Sketcher.Constraint("Coincident", 0, 3, -1, 1),
    Sketcher.Constraint("Diameter", 0, 17.8),
])
pad7 = body.newObject("PartDesign::Pad", "Pad006")
pad7.Profile = sketch20
pad7.Length = 5
pad7.Reversed = True

# Sketch on YZ plane
sketch21 = body.newObject("Sketcher::SketchObject", "Sketch020")
sketch21.AttachmentSupport = (doc.getObject("YZ_Plane"), [""])
sketch21.MapMode = "FlatFace"
sketch21.AttachmentOffset = App.Placement(Vector(0, 0, -5.320542), App.Rotation())
sketch21.addGeometry(Part.Circle(Vector(0, 0, 0), Vector(0, 0, 1), 7), False)
sketch21.addConstraint([
    Sketcher.Constraint("Coincident", 0, 3, -1, 1),
    Sketcher.Constraint("Diameter", 0, 13.25),
])
doc.recompute()
hole2 = body.newObject("PartDesign::Hole", "Hole001")
hole2.Profile = sketch21
hole2.ThreadType = "None"
hole2.Diameter = 13.25
hole2.DepthType = "Dimension"
hole2.Depth = 1
hole2.DrillPoint = "Flat"
hole2.Reversed = True

# Sketch on XY plane
sketch22 = body.newObject("Sketcher::SketchObject", "Sketch021")
sketch22.AttachmentSupport = (doc.getObject("XY_Plane"), [""])
sketch22.MapMode = "FlatFace"
sketch22.addGeometry([
    Part.LineSegment(Vector(-4, 3.8, 0), Vector(-4, 0, 0)),  # 0
    Part.LineSegment(Vector(-4, 0, 0), Vector(-12.8, 0, 0)),  # 1
    Part.LineSegment(Vector(-12.8, 0, 0), Vector(-12.8, 2.5, 0)),  # 2
    Part.LineSegment(Vector(-12.8, 2.5, 0), Vector(-5, 2.5, 0)),  # 3
    Part.LineSegment(Vector(-5, 2.5, 0), Vector(-5, 3.8, 0)),  # 4
    Part.LineSegment(Vector(-5, 3.8, 0), Vector(-4, 3.8, 0)),  # 5
], False)
sketch22.addConstraint([
    Sketcher.Constraint("Coincident", 0, 2, 1, 1),
    Sketcher.Constraint("Coincident", 1, 2, 2, 1),
    Sketcher.Constraint("Coincident", 2, 2, 3, 1),
    Sketcher.Constraint("Coincident", 3, 2, 4, 1),
    Sketcher.Constraint("Coincident", 4, 2, 5, 1),
    Sketcher.Constraint("Coincident", 5, 2, 0, 1),
    Sketcher.Constraint("Vertical", 0),
    Sketcher.Constraint("Horizontal", 1),
    Sketcher.Constraint("Vertical", 2),
    Sketcher.Constraint("Horizontal", 3),
    Sketcher.Constraint("Vertical", 4),
    Sketcher.Constraint("Horizontal", 5),
    Sketcher.Constraint("PointOnObject", 0, 2, -1),
    Sketcher.Constraint("DistanceX", 5, 1, 5, 2, 1.0),
    Sketcher.Constraint("DistanceX", 1, 2, 1, 1, 8.8),
    Sketcher.Constraint("DistanceY", 2, 1, 2, 2, 2.5),
    Sketcher.Constraint("DistanceX", 0, 2, -1, 1, 4.0),
    Sketcher.Constraint("DistanceY", 0, 2, 0, 1, 3.75),
])
revolution2 = body.newObject("PartDesign::Revolution", "Revolution001")
revolution2.Profile = sketch22
revolution2.ReferenceAxis = (sketch22, ["H_Axis"])
revolution2.Angle = 360

# Sketch on XZ plane
sketch23 = body.newObject("Sketcher::SketchObject", "Sketch022")
sketch23.AttachmentSupport = (doc.getObject("XZ_Plane"), [""])
sketch23.MapMode = "FlatFace"
sketch23.AttachmentOffset = App.Placement(Vector(0, 0, -15), App.Rotation())
sketch23.addGeometry([
    Part.LineSegment(Vector(61.34, -6.5, 0), Vector(61.44, -6.5, 0)),
    Part.LineSegment(Vector(61.44, -6.5, 0), Vector(61.44, -7.75, 0)),
    Part.LineSegment(Vector(61.44, -7.75, 0), Vector(61.34, -7.75, 0)),
    Part.LineSegment(Vector(61.34, -7.75, 0), Vector(61.34, -6.5, 0)),
], False)
sketch23.addGeometry(Part.LineSegment(Vector(61.44, -6.5, 0), Vector(61.34, -6.5, 0)), True)  # axis
sketch23.addConstraint([
    Sketcher.Constraint("Coincident", 0, 2, 1, 1),
    Sketcher.Constraint("Coincident", 1, 2, 2, 1),
    Sketcher.Constraint("Coincident", 2, 2, 3, 1),
    Sketcher.Constraint("Coincident", 3, 2, 0, 1),
    Sketcher.Constraint("Horizontal", 0),
    Sketcher.Constraint("Vertical", 1),
    Sketcher.Constraint("Horizontal", 2),
    Sketcher.Constraint("Vertical", 3),
    Sketcher.Constraint("Horizontal", 4),
    Sketcher.Constraint("Coincident", 4, 1, 0, 2),
    Sketcher.Constraint("Vertical", 2, 2, 4, 2),
    Sketcher.Constraint("DistanceX", 0, 1, 0, 2, 0.1),
    Sketcher.Constraint("DistanceY", 1, 2, 1, 1, 1.25),
    Sketcher.Constraint("DistanceY", 0, 2, -1, 1, 6.5),
    Sketcher.Constraint("DistanceX", -1, 1, 0, 2, 61.44447),
])
groove = body.newObject("PartDesign::Groove", "Groove")
groove.Profile = sketch23
groove.ReferenceAxis = (sketch23, ["Axis0"])
groove.Angle = 360

# Sketch on XZ plane
sketch24 = body.newObject("Sketcher::SketchObject", "Sketch023")
sketch24.AttachmentSupport = (doc.getObject("XZ_Plane"), [""])
sketch24.MapMode = "FlatFace"
sketch24.AttachmentOffset = App.Placement(Vector(0, 0, -14.5), App.Rotation())
sketch24.addGeometry([
    Part.LineSegment(Vector(12.2, 0, 0), Vector(-0.3, 0, 0)),
    Part.LineSegment(Vector(-0.3, 0, 0), Vector(-0.3, 1.6, 0)),
    Part.LineSegment(Vector(-0.3, 1.6, 0), Vector(11.2, 1.6, 0)),
    Part.LineSegment(Vector(11.2, 1.6, 0), Vector(12.2, 0, 0)),
], False)
sketch24.addConstraint([
    Sketcher.Constraint("Coincident", 0, 2, 1, 1),
    Sketcher.Constraint("Coincident", 1, 2, 2, 1),
    Sketcher.Constraint("Coincident", 2, 2, 3, 1),
    Sketcher.Constraint("Coincident", 3, 2, 0, 1),
    Sketcher.Constraint("Horizontal", 0),
    Sketcher.Constraint("Vertical", 1),
    Sketcher.Constraint("Horizontal", 2),
    Sketcher.Constraint("PointOnObject", 0, 2, -1),
    Sketcher.Constraint("Angle", 3, Q("-59 deg")),
    Sketcher.Constraint("DistanceX", 2, 1, 2, 2, 11.5),
    Sketcher.Constraint("DistanceY", 1, 1, 1, 2, 1.65),
    Sketcher.Constraint("DistanceX", 0, 2, -1, 1, 0.320542),
])
groove2 = body.newObject("PartDesign::Groove", "Groove001")
groove2.Profile = sketch24
groove2.ReferenceAxis = (sketch24, ["H_Axis"])
groove2.Angle = 360
doc.recompute()

linearpattern = body.newObject("PartDesign::LinearPattern", "LinearPattern")
linearpattern.Originals = [groove2]
linearpattern.Direction = (doc.getObject("Y_Axis"), [""])
linearpattern.Mode = "offset"
linearpattern.Offset = 29
linearpattern.Occurrences = 2
linearpattern.Reversed = True
body.Tip = linearpattern
doc.recompute()

chamfer = body.newObject("PartDesign::Chamfer", "Chamfer")
chamfer.Base = (linearpattern, edges_at(linearpattern, [
    (72.394, 17.25, -2.3),
    (72.394, 17.25, 2.3),
    (72.394, -17.25, -2.3),
    (72.394, -17.25, 2.3),
]))
chamfer.Size = 0.5
doc.recompute()

fillet = body.newObject("PartDesign::Fillet", "Fillet")
fillet.Base = (chamfer, edges_at(chamfer, [(-12.8, 0, -2.5)]))
fillet.Radius = 0.25
doc.recompute()

fillet2 = body.newObject("PartDesign::Fillet", "Fillet001")
fillet2.Base = (fillet, edges_at(fillet, [(-5.321, 0, -8.9)]))
fillet2.Radius = 0.75
doc.recompute()

fillet3 = body.newObject("PartDesign::Fillet", "Fillet002")
fillet3.Base = (fillet2, edges_at(fillet2, [(70.944, 0, 8.75)]))
fillet3.Radius = 1
doc.recompute()

fillet4 = body.newObject("PartDesign::Fillet", "Fillet003")
fillet4.Base = (fillet3, edges_at(fillet3, [(-0.321, 0, 21.15)]))
fillet4.Radius = 2.5
body2 = doc.addObject("PartDesign::Body", "Body001")

# Sketch on XY plane
sketch25 = body2.newObject("Sketcher::SketchObject", "Sketch024")
sketch25.AttachmentSupport = (doc.getObject("XY_Plane001"), [""])
sketch25.MapMode = "FlatFace"
sketch25.addGeometry([
    Part.LineSegment(Vector(75.2, 2.5, 0), Vector(75.2, 0, 0)),
    Part.LineSegment(Vector(75.2, 0, 0), Vector(71.8, 0, 0)),
    Part.LineSegment(Vector(71.8, 0, 0), Vector(71.8, 2.5, 0)),
    Part.LineSegment(Vector(71.8, 2.5, 0), Vector(75.2, 2.5, 0)),
], False)
sketch25.addConstraint([
    Sketcher.Constraint("Coincident", 0, 2, 1, 1),
    Sketcher.Constraint("Coincident", 1, 2, 2, 1),
    Sketcher.Constraint("Coincident", 2, 2, 3, 1),
    Sketcher.Constraint("Coincident", 3, 2, 0, 1),
    Sketcher.Constraint("Vertical", 0),
    Sketcher.Constraint("Horizontal", 1),
    Sketcher.Constraint("Vertical", 2),
    Sketcher.Constraint("Horizontal", 3),
    Sketcher.Constraint("PointOnObject", 0, 2, -1),
    Sketcher.Constraint("DistanceX", 1, 2, 1, 1, 3.4),
    Sketcher.Constraint("DistanceY", 0, 2, 0, 1, 2.5),
    Sketcher.Constraint("DistanceX", -1, 1, 0, 2, 75.2),
])
revolution3 = body2.newObject("PartDesign::Revolution", "Revolution002")
revolution3.Profile = sketch25
revolution3.ReferenceAxis = (sketch25, ["H_Axis"])
revolution3.Angle = 360

doc.recompute()
